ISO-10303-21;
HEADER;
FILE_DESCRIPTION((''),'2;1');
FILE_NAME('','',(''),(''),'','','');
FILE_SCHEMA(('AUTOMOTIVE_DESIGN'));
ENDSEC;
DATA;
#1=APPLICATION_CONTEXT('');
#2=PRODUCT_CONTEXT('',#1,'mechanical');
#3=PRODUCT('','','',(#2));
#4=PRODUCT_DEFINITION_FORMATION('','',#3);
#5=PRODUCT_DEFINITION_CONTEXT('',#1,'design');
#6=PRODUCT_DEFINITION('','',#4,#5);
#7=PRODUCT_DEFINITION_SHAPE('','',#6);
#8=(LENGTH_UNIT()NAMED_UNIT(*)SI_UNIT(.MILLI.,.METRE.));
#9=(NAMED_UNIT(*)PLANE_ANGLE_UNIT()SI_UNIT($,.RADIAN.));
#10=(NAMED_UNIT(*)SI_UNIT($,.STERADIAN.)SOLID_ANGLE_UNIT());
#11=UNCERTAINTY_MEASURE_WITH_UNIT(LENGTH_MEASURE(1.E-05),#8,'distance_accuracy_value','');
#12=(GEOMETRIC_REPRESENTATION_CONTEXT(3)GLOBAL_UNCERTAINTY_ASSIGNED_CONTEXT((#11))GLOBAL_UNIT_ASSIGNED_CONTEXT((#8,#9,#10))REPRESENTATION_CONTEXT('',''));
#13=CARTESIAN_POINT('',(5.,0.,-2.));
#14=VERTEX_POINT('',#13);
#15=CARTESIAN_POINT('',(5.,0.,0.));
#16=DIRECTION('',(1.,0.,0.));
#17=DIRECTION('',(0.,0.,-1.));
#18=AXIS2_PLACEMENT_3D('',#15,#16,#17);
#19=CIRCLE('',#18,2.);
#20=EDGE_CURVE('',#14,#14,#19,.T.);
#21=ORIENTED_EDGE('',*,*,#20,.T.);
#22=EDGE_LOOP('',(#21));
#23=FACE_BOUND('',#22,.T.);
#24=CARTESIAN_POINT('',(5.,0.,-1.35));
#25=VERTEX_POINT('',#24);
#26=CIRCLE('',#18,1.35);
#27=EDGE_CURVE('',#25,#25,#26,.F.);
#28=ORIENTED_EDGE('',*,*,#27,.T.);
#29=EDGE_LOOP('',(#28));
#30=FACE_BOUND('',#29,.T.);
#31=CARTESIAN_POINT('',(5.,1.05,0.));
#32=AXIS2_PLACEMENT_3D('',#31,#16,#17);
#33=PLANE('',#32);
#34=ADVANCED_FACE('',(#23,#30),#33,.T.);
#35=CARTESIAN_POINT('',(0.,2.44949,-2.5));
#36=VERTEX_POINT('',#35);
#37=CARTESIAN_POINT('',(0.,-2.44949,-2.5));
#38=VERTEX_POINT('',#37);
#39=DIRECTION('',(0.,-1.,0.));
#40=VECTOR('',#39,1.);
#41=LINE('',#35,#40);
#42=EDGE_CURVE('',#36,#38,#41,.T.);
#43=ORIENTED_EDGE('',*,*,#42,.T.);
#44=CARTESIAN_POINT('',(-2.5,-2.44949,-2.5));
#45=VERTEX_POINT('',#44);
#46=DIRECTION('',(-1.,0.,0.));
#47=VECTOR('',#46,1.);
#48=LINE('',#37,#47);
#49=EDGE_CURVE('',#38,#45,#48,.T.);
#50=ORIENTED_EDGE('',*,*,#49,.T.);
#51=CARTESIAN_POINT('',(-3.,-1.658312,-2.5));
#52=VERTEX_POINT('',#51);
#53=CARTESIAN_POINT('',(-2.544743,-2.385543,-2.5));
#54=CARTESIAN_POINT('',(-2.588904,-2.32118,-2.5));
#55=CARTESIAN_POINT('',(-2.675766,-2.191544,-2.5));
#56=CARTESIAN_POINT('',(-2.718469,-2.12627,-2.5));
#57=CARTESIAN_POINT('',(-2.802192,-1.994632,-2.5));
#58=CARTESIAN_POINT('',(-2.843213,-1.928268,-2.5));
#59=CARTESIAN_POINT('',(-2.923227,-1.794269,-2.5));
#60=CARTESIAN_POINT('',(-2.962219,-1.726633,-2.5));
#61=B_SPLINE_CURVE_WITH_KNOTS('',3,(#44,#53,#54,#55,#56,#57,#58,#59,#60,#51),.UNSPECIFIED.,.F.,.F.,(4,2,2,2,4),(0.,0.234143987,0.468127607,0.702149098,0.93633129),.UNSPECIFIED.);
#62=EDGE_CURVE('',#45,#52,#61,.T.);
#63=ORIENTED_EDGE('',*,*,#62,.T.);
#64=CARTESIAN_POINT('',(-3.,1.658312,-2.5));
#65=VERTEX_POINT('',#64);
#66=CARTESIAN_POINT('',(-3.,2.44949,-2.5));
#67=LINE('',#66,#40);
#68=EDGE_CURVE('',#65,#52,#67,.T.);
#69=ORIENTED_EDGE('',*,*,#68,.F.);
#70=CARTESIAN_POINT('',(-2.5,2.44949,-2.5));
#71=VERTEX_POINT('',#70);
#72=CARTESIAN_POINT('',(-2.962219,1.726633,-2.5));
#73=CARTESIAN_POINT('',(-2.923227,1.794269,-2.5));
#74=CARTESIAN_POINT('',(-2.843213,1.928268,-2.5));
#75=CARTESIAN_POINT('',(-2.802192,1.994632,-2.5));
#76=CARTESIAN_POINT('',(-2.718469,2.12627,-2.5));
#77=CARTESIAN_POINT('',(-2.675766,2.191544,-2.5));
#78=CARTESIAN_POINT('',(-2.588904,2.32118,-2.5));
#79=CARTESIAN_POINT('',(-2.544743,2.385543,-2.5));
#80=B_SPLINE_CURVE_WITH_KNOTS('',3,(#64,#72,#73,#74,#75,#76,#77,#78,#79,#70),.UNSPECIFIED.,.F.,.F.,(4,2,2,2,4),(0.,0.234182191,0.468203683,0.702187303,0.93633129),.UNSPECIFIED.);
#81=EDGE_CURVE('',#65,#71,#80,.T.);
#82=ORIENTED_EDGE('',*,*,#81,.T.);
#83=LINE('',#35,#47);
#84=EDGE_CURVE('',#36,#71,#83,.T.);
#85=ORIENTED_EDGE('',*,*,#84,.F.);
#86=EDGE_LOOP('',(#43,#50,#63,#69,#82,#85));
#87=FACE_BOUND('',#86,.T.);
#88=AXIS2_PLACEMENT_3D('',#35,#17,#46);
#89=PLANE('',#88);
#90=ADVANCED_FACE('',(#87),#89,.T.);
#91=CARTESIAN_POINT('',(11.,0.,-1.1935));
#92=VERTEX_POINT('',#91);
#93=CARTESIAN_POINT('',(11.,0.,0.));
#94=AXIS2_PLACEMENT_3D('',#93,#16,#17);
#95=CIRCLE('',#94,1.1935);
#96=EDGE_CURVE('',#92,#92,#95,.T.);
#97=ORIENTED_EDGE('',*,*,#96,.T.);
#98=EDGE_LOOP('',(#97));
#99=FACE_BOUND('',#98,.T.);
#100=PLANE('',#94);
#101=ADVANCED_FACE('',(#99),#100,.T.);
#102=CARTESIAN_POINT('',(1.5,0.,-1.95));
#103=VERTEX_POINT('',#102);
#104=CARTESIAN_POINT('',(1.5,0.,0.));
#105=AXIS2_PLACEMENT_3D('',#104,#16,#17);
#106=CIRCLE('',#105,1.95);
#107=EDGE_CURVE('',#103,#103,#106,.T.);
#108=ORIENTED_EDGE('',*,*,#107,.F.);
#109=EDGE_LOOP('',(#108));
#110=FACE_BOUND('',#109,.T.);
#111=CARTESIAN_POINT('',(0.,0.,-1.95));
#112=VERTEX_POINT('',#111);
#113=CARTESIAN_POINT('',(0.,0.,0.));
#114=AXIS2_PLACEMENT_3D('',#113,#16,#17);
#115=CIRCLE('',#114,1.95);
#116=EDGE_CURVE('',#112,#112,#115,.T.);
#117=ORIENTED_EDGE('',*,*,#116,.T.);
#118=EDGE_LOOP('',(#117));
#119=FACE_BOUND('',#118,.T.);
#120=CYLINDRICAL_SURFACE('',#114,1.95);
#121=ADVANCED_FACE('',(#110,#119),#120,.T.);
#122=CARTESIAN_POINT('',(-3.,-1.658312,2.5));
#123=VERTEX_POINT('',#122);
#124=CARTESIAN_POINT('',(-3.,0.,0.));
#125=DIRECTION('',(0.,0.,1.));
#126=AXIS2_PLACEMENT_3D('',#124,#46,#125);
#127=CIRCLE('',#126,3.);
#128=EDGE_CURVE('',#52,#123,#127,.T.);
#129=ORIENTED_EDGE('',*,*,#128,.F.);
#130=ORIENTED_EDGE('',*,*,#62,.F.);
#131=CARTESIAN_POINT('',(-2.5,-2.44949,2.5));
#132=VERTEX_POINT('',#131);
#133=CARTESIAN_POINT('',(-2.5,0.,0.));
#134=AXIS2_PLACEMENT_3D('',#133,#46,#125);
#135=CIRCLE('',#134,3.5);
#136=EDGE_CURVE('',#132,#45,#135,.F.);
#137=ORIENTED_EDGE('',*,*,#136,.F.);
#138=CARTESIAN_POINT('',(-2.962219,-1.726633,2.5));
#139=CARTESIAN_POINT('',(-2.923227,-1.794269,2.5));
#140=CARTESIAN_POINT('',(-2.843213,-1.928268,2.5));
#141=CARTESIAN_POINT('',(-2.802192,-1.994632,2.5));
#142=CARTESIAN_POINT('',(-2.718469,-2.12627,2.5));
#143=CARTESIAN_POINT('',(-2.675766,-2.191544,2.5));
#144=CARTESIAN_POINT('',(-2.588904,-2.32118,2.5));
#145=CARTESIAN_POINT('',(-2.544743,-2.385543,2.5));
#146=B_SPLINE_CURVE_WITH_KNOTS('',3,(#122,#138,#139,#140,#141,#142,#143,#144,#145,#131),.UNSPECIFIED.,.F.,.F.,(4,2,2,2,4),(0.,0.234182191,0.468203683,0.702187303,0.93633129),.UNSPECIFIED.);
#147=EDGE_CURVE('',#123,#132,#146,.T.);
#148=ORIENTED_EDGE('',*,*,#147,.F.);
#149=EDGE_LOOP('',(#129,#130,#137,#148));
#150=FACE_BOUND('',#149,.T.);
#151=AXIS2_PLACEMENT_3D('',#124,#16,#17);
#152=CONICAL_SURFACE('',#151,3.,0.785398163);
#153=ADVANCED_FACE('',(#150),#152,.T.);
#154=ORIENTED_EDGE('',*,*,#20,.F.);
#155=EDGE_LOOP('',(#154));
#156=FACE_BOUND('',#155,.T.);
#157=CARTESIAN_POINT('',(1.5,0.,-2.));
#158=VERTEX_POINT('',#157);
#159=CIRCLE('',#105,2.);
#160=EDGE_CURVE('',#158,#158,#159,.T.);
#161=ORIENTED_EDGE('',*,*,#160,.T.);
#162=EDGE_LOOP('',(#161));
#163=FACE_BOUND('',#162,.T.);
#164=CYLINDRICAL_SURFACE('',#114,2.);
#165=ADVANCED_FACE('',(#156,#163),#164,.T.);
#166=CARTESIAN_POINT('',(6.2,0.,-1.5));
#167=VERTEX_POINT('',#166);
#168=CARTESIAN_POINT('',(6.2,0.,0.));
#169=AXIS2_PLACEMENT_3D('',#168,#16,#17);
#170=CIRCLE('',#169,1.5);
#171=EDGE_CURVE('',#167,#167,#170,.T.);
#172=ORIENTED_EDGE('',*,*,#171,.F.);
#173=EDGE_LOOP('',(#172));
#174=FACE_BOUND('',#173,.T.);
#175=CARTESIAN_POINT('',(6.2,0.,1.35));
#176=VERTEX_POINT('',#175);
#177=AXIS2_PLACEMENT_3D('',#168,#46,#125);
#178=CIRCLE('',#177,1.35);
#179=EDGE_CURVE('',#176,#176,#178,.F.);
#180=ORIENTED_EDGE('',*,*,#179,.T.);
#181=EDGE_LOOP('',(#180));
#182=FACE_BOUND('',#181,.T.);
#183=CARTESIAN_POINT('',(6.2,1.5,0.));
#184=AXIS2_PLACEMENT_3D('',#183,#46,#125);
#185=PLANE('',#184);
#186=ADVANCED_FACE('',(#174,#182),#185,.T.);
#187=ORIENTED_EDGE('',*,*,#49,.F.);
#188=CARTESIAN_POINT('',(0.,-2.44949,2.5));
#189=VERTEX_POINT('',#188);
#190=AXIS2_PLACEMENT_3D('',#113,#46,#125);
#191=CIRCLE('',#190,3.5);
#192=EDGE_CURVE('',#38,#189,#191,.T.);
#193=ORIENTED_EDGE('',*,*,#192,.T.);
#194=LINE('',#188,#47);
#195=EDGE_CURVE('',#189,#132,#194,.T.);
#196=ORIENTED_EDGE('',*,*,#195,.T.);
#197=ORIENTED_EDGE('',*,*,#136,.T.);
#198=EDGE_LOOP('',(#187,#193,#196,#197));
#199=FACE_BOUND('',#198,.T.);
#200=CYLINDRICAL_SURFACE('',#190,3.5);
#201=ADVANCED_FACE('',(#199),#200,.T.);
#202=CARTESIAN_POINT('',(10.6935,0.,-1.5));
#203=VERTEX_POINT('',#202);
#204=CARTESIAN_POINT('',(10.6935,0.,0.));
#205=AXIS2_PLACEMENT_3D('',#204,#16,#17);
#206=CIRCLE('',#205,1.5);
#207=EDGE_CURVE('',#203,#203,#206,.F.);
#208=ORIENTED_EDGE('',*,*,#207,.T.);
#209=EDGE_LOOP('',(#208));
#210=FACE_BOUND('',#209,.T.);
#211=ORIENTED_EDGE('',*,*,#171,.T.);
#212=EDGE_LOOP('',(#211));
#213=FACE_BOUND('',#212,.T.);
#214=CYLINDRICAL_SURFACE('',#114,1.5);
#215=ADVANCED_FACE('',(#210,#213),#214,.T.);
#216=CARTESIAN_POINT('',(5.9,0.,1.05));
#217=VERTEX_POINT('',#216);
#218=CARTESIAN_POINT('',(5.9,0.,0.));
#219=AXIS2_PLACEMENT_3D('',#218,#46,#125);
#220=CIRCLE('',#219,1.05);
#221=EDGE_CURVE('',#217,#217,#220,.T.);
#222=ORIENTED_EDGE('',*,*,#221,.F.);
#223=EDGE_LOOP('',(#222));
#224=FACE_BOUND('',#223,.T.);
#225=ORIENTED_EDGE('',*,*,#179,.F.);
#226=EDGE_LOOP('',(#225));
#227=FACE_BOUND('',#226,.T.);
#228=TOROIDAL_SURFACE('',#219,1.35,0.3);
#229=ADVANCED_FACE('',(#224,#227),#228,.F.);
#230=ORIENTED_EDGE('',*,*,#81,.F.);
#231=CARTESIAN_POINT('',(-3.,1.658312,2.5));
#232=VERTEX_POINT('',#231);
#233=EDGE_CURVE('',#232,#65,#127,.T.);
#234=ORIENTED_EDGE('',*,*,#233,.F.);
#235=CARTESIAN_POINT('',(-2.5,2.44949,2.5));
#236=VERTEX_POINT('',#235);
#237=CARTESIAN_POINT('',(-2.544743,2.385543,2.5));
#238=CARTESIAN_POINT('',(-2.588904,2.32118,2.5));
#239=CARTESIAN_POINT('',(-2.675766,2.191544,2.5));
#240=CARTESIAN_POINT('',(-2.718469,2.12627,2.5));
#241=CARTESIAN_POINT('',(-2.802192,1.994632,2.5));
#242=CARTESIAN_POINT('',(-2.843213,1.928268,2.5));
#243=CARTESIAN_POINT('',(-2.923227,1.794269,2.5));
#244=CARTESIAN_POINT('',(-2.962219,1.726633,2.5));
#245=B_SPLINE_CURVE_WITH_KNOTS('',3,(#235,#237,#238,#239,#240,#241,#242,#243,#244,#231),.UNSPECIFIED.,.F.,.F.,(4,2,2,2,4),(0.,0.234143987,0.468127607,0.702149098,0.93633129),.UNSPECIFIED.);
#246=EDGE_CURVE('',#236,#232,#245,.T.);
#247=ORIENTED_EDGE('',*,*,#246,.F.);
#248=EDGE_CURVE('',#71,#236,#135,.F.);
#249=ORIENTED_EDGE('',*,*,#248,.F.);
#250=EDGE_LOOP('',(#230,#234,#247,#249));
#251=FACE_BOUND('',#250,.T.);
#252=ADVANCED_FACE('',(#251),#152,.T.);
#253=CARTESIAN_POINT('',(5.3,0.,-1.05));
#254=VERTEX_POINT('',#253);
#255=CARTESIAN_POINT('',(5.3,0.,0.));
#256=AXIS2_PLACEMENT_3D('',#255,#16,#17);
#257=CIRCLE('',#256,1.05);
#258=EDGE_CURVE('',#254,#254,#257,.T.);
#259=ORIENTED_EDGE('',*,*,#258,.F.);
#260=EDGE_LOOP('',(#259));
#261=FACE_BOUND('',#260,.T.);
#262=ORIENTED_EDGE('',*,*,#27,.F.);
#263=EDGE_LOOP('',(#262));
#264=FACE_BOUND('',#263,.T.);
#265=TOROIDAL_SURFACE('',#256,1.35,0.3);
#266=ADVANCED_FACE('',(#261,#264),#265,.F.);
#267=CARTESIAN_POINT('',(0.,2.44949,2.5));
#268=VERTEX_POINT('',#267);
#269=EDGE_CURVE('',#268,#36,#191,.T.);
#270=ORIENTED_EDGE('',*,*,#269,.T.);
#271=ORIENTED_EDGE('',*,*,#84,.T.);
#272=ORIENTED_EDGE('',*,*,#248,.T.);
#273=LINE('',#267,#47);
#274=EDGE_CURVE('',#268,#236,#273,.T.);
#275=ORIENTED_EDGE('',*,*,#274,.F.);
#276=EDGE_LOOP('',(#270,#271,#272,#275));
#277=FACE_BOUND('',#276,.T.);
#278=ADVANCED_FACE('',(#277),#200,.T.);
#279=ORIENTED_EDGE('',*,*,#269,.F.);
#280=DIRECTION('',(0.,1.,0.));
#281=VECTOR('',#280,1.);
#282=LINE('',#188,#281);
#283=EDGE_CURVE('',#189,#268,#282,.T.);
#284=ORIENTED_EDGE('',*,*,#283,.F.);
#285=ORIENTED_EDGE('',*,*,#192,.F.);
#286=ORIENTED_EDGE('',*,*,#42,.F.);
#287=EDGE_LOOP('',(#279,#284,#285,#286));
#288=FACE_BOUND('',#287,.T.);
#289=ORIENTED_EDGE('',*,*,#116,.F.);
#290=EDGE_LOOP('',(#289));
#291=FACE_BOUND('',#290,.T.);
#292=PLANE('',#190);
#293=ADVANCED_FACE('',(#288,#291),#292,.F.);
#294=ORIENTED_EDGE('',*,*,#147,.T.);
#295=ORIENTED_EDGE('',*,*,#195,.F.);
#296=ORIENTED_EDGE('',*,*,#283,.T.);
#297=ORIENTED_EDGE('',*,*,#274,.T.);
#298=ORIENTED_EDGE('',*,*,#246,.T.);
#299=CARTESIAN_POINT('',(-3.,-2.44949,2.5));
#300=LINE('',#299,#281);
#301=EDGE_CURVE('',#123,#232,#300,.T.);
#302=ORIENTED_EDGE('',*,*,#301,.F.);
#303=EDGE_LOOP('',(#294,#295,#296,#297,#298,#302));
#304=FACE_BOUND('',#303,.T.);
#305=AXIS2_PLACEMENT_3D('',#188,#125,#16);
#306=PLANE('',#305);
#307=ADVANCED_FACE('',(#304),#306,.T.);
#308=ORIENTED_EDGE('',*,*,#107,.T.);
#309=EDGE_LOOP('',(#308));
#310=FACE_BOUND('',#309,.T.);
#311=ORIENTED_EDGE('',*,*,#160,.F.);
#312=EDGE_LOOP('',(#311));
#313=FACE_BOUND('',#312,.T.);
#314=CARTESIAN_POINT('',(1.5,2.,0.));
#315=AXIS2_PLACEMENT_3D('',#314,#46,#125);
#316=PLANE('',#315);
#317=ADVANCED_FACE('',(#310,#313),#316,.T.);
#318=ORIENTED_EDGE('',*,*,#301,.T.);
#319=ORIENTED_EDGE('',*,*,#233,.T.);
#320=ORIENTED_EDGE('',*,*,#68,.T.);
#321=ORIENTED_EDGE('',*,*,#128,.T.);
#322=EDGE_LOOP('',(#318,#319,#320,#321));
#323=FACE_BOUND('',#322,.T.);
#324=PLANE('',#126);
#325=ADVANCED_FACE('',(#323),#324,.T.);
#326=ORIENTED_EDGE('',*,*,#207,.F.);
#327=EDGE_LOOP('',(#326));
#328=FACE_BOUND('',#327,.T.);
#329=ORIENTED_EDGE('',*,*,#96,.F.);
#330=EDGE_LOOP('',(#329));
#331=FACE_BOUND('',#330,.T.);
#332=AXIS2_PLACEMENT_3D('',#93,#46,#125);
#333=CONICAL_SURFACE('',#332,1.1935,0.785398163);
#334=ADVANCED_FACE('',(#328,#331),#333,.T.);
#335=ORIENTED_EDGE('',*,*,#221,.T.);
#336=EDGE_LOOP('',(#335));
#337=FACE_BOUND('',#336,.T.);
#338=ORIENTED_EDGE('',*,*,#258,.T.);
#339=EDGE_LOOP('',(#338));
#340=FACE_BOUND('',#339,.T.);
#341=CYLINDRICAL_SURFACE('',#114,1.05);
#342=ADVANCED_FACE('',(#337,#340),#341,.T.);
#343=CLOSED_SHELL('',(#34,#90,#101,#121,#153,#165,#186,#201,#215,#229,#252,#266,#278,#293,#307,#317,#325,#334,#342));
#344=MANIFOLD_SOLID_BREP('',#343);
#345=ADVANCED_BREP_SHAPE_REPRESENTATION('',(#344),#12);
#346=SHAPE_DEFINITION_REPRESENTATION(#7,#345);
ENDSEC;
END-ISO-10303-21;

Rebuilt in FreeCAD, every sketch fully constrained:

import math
import FreeCAD as App
import Part
import Sketcher


def edges_at(feature, points):
    """Names of the edges that pass closest to the given points."""
    edges = feature.Shape.Edges
    near = lambda p: min(range(len(edges)), key=lambda i: edges[i].distToShape(Part.Vertex(*p))[0])
    return sorted({f"Edge{near(p) + 1}" for p in points})

doc = App.newDocument("Part")
body = doc.addObject("PartDesign::Body", "Body")

sketch1 = body.newObject("Sketcher::SketchObject", "Sketch")
sketch1.AttachmentSupport = (doc.getObject("YZ_Plane"), [""])
sketch1.MapMode = "FlatFace"
sketch1.AttachmentOffset = App.Placement(App.Vector(0, 0, -3), App.Rotation())
sketch1.addGeometry(Part.LineSegment(App.Vector(-2.44949, 2.5, 0), App.Vector(2.44949, 2.5, 0)), False)
sketch1.addGeometry(Part.ArcOfCircle(Part.Circle(App.Vector(0, 0, 0), App.Vector(0, 0, 1), 3.5), math.radians(-45.584691), math.radians(45.584691)), False)
sketch1.addGeometry(Part.LineSegment(App.Vector(2.44949, -2.5, 0), App.Vector(-2.44949, -2.5, 0)), False)
sketch1.addGeometry(Part.ArcOfCircle(Part.Circle(App.Vector(0, 0, 0), App.Vector(0, 0, 1), 3.5), math.radians(134.415309), math.radians(225.584691)), False)
sketch1.addConstraint(Sketcher.Constraint("Coincident", 0, 2, 1, 2))
sketch1.addConstraint(Sketcher.Constraint("Coincident", 1, 1, 2, 1))
sketch1.addConstraint(Sketcher.Constraint("Coincident", 2, 2, 3, 2))
sketch1.addConstraint(Sketcher.Constraint("Coincident", 3, 1, 0, 1))
sketch1.addConstraint(Sketcher.Constraint("Horizontal", 0))
sketch1.addConstraint(Sketcher.Constraint("Horizontal", 2))
sketch1.addConstraint(Sketcher.Constraint("Coincident", 1, 3, -1, 1))
sketch1.addConstraint(Sketcher.Constraint("Coincident", 3, 3, -1, 1))
sketch1.addConstraint(Sketcher.Constraint("Equal", 1, 3))
sketch1.addConstraint(Sketcher.Constraint("Vertical", 0, 2, 1, 1))
sketch1.addConstraint(Sketcher.Constraint("Radius", 1, 3.5))
sketch1.addConstraint(Sketcher.Constraint("DistanceY", 1, 1, 0, 2, 5.0))
pad1 = body.newObject("PartDesign::Pad", "Pad")
pad1.Profile = sketch1
pad1.Length = 3

sketch2 = body.newObject("Sketcher::SketchObject", "Sketch001")
sketch2.AttachmentSupport = (doc.getObject("XY_Plane"), [""])
sketch2.MapMode = "FlatFace"
sketch2.addGeometry(Part.LineSegment(App.Vector(0, 1.95, 0), App.Vector(0, 0, 0)), False)
sketch2.addGeometry(Part.LineSegment(App.Vector(0, 0, 0), App.Vector(11, 0, 0)), False)
sketch2.addGeometry(Part.LineSegment(App.Vector(11, 0, 0), App.Vector(11, 1.5, 0)), False)
sketch2.addGeometry(Part.LineSegment(App.Vector(11, 1.5, 0), App.Vector(6.2, 1.5, 0)), False)
sketch2.addGeometry(Part.LineSegment(App.Vector(6.2, 1.5, 0), App.Vector(6.2, 1.05, 0)), False)
sketch2.addGeometry(Part.LineSegment(App.Vector(6.2, 1.05, 0), App.Vector(5, 1.05, 0)), False)
sketch2.addGeometry(Part.LineSegment(App.Vector(5, 1.05, 0), App.Vector(5, 2, 0)), False)
sketch2.addGeometry(Part.LineSegment(App.Vector(5, 2, 0), App.Vector(1.5, 2, 0)), False)
sketch2.addGeometry(Part.LineSegment(App.Vector(1.5, 2, 0), App.Vector(1.5, 1.95, 0)), False)
sketch2.addGeometry(Part.LineSegment(App.Vector(1.5, 1.95, 0), App.Vector(0, 1.95, 0)), False)
sketch2.addConstraint(Sketcher.Constraint("Coincident", 0, 2, 1, 1))
sketch2.addConstraint(Sketcher.Constraint("Coincident", 1, 2, 2, 1))
sketch2.addConstraint(Sketcher.Constraint("Coincident", 2, 2, 3, 1))
sketch2.addConstraint(Sketcher.Constraint("Coincident", 3, 2, 4, 1))
sketch2.addConstraint(Sketcher.Constraint("Coincident", 4, 2, 5, 1))
sketch2.addConstraint(Sketcher.Constraint("Coincident", 5, 2, 6, 1))
sketch2.addConstraint(Sketcher.Constraint("Coincident", 6, 2, 7, 1))
sketch2.addConstraint(Sketcher.Constraint("Coincident", 7, 2, 8, 1))
sketch2.addConstraint(Sketcher.Constraint("Coincident", 8, 2, 9, 1))
sketch2.addConstraint(Sketcher.Constraint("Coincident", 9, 2, 0, 1))
sketch2.addConstraint(Sketcher.Constraint("Vertical", 0))
sketch2.addConstraint(Sketcher.Constraint("Horizontal", 1))
sketch2.addConstraint(Sketcher.Constraint("Vertical", 2))
sketch2.addConstraint(Sketcher.Constraint("Horizontal", 3))
sketch2.addConstraint(Sketcher.Constraint("Vertical", 4))
sketch2.addConstraint(Sketcher.Constraint("Horizontal", 5))
sketch2.addConstraint(Sketcher.Constraint("Vertical", 6))
sketch2.addConstraint(Sketcher.Constraint("Horizontal", 7))
sketch2.addConstraint(Sketcher.Constraint("Vertical", 8))
sketch2.addConstraint(Sketcher.Constraint("Horizontal", 9))
sketch2.addConstraint(Sketcher.Constraint("Coincident", 0, 2, -1, 1))
sketch2.addConstraint(Sketcher.Constraint("Equal", 9, 2))
sketch2.addConstraint(Sketcher.Constraint("DistanceX", 1, 1, 1, 2, 11.0))
sketch2.addConstraint(Sketcher.Constraint("DistanceX", 3, 2, 3, 1, 4.8))
sketch2.addConstraint(Sketcher.Constraint("DistanceX", 5, 2, 5, 1, 1.2))
sketch2.addConstraint(Sketcher.Constraint("DistanceX", 7, 2, 7, 1, 3.5))
sketch2.addConstraint(Sketcher.Constraint("DistanceY", -1, 1, 6, 2, 2.0))
sketch2.addConstraint(Sketcher.Constraint("DistanceY", 0, 2, 0, 1, 1.95))
sketch2.addConstraint(Sketcher.Constraint("DistanceY", 4, 2, 4, 1, 0.45))
revolution = body.newObject("PartDesign::Revolution", "Revolution")
revolution.Profile = sketch2
revolution.ReferenceAxis = (sketch2, ["H_Axis"])
revolution.Angle = 360
doc.recompute()

chamfer = body.newObject("PartDesign::Chamfer", "Chamfer")
chamfer.Base = (revolution, edges_at(revolution, [(11, 0, 1.5)]))
chamfer.Size = 0.3065
doc.recompute()

chamfer2 = body.newObject("PartDesign::Chamfer", "Chamfer001")
chamfer2.Base = (chamfer, edges_at(chamfer, [(-3, 3.5, 0), (-3, -3.5, 0)]))
chamfer2.Size = 0.5
doc.recompute()

fillet = body.newObject("PartDesign::Fillet", "Fillet")
fillet.Base = (chamfer2, edges_at(chamfer2, [(6.2, 0, 1.05), (5, 0, 1.05)]))
fillet.Radius = 0.3

doc.recompute()
